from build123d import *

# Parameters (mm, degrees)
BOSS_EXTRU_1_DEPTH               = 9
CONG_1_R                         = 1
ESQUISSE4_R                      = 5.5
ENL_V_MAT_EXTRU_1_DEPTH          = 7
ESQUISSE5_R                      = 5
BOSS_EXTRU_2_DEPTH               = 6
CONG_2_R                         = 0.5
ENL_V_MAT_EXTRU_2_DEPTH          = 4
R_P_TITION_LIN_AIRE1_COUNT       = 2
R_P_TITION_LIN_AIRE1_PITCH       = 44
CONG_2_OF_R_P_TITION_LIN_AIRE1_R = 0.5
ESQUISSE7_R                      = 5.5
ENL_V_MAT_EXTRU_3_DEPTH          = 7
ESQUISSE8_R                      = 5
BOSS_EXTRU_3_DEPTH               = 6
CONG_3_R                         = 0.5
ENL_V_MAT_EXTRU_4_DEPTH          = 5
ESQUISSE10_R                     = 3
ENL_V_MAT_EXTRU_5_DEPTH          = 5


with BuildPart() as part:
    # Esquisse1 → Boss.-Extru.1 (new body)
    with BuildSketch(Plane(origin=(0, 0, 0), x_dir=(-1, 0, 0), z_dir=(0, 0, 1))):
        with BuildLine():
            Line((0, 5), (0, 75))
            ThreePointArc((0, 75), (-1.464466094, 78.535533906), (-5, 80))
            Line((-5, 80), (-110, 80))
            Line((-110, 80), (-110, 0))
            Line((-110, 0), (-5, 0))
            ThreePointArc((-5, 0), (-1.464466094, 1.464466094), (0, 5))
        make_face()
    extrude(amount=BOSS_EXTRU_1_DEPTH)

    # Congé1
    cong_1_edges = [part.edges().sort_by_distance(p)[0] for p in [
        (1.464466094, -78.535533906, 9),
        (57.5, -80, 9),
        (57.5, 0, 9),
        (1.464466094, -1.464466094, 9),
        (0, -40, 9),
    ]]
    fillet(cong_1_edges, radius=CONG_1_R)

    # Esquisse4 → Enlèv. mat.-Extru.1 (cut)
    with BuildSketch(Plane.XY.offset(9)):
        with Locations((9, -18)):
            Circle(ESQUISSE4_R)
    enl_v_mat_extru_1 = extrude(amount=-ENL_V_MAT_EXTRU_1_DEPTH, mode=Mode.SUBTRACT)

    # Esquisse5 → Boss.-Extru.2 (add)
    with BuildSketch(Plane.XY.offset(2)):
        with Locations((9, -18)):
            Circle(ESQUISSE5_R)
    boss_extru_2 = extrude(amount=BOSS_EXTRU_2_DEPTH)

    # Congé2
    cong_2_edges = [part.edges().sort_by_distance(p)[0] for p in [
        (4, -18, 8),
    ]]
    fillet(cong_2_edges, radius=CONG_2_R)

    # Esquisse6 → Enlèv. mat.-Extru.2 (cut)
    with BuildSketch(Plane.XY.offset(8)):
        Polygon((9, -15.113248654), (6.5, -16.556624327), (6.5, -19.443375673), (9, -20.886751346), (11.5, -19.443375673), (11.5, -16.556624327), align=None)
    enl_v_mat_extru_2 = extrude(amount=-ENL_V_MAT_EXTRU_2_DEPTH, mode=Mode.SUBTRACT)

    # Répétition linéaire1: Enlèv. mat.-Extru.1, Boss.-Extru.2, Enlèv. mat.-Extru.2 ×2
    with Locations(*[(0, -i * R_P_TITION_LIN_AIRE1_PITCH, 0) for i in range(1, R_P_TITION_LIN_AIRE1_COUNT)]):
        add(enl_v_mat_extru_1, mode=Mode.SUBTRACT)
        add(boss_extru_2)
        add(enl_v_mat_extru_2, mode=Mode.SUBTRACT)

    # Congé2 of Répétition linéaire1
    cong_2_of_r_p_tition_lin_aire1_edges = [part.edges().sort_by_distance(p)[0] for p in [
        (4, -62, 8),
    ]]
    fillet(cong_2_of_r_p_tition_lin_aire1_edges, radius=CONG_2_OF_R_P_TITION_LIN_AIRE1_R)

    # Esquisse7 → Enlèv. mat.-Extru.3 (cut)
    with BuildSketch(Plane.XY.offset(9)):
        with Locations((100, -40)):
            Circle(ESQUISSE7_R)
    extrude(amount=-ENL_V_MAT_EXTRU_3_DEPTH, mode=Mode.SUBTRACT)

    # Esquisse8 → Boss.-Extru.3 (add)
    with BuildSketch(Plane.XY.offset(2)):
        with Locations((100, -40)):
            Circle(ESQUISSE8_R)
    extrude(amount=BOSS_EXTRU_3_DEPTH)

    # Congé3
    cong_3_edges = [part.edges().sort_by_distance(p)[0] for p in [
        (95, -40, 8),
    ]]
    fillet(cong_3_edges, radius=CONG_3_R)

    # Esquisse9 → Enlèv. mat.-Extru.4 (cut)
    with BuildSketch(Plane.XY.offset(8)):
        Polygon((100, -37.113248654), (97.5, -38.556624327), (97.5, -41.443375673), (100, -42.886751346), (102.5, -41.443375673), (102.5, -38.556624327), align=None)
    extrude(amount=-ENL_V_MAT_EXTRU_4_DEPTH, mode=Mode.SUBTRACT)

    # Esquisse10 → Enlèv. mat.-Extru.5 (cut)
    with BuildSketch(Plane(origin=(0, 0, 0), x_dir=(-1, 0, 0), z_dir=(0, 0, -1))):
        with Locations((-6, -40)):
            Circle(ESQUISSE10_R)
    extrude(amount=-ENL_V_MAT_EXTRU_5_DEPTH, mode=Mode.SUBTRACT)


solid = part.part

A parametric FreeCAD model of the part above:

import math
import FreeCAD as App
import Part
import Sketcher
from FreeCAD import Vector
Q = App.Units.Quantity


def edges_at(feature, points):
    """Names of the edges that pass closest to the given points."""
    edges = feature.Shape.Edges
    near = lambda p: min(range(len(edges)), key=lambda i: edges[i].distToShape(Part.Vertex(*p))[0])
    return sorted({f"Edge{near(p) + 1}" for p in points})

doc = App.newDocument("Part")
body = doc.addObject("PartDesign::Body", "Body")

sketch1 = doc.addObject("Sketcher::SketchObject", "Sketch")
body.addObject(sketch1)
sketch1.AttachmentSupport = (doc.XY_Plane, [""])
sketch1.MapMode = "FlatFace"
sketch1.addGeometry(Part.LineSegment(Vector(0, -5, 0), Vector(0, -75, 0)), False)
sketch1.addGeometry(Part.ArcOfCircle(Part.Circle(Vector(5, -75, 0), Vector(0, 0, 1), 5), math.radians(180), math.radians(270)), False)
sketch1.addGeometry(Part.LineSegment(Vector(5, -80, 0), Vector(110, -80, 0)), False)
sketch1.addGeometry(Part.LineSegment(Vector(110, -80, 0), Vector(110, 0, 0)), False)
sketch1.addGeometry(Part.LineSegment(Vector(110, 0, 0), Vector(5, 0, 0)), False)
sketch1.addGeometry(Part.ArcOfCircle(Part.Circle(Vector(5, -5, 0), Vector(0, 0, 1), 5), math.radians(90), math.radians(180)), False)
sketch1.addConstraint(Sketcher.Constraint("Tangent", 0, 2, 1, 1))
sketch1.addConstraint(Sketcher.Constraint("Tangent", 1, 2, 2, 1))
sketch1.addConstraint(Sketcher.Constraint("Coincident", 2, 2, 3, 1))
sketch1.addConstraint(Sketcher.Constraint("Coincident", 3, 2, 4, 1))
sketch1.addConstraint(Sketcher.Constraint("Tangent", 4, 2, 5, 1))
sketch1.addConstraint(Sketcher.Constraint("Tangent", 5, 2, 0, 1))
sketch1.addConstraint(Sketcher.Constraint("Vertical", 0))
sketch1.addConstraint(Sketcher.Constraint("Horizontal", 2))
sketch1.addConstraint(Sketcher.Constraint("Vertical", 3))
sketch1.addConstraint(Sketcher.Constraint("Horizontal", 4))
sketch1.addConstraint(Sketcher.Constraint("Equal", 1, 5))
sketch1.addConstraint(Sketcher.Constraint("PointOnObject", 0, 2, -2))
sketch1.addConstraint(Sketcher.Constraint("PointOnObject", 3, 2, -1))
sketch1.addConstraint(Sketcher.Constraint("Radius", 1, Q("5 mm")))
sketch1.addConstraint(Sketcher.Constraint("DistanceX", 2, 1, 2, 2, Q("105 mm")))
sketch1.addConstraint(Sketcher.Constraint("DistanceY", 0, 2, 0, 1, Q("70 mm")))
pad1 = doc.addObject("PartDesign::Pad", "Pad")
body.addObject(pad1)
pad1.Profile = sketch1
pad1.Length = 9
doc.recompute()

fillet = doc.addObject("PartDesign::Fillet", "Fillet")
body.addObject(fillet)
fillet.Base = (pad1, edges_at(pad1, [
    (1.464, -78.536, 9),
    (57.5, -80, 9),
    (57.5, 0, 9),
    (1.464, -1.464, 9),
    (0, -40, 9),
]))
fillet.Radius = 1

sketch2 = doc.addObject("Sketcher::SketchObject", "Sketch001")
body.addObject(sketch2)
sketch2.AttachmentSupport = (doc.XY_Plane, [""])
sketch2.MapMode = "FlatFace"
sketch2.AttachmentOffset = App.Placement(Vector(0, 0, 9), App.Rotation())
sketch2.addGeometry(Part.Circle(Vector(9, -18, 0), Vector(0, 0, 1), 5.5), False)
sketch2.addConstraint(Sketcher.Constraint("Diameter", 0, Q("11 mm")))
sketch2.addConstraint(Sketcher.Constraint("DistanceX", -1, 1, 0, 3, Q("9 mm")))
sketch2.addConstraint(Sketcher.Constraint("DistanceY", 0, 3, -1, 1, Q("18 mm")))
pocket1 = doc.addObject("PartDesign::Pocket", "Pocket")
body.addObject(pocket1)
pocket1.Profile = sketch2
pocket1.Length = 7

sketch3 = doc.addObject("Sketcher::SketchObject", "Sketch002")
body.addObject(sketch3)
sketch3.AttachmentSupport = (doc.XY_Plane, [""])
sketch3.MapMode = "FlatFace"
sketch3.AttachmentOffset = App.Placement(Vector(0, 0, 2), App.Rotation())
sketch3.addGeometry(Part.Circle(Vector(9, -18, 0), Vector(0, 0, 1), 5), False)
sketch3.addConstraint(Sketcher.Constraint("Diameter", 0, Q("10 mm")))
sketch3.addConstraint(Sketcher.Constraint("DistanceX", -1, 1, 0, 3, Q("9 mm")))
sketch3.addConstraint(Sketcher.Constraint("DistanceY", 0, 3, -1, 1, Q("18 mm")))
pad2 = doc.addObject("PartDesign::Pad", "Pad001")
body.addObject(pad2)
pad2.Profile = sketch3
pad2.Length = 6
doc.recompute()

fillet2 = doc.addObject("PartDesign::Fillet", "Fillet001")
body.addObject(fillet2)
fillet2.Base = (pad2, edges_at(pad2, [(4, -18, 8)]))
fillet2.Radius = 0.5

sketch4 = doc.addObject("Sketcher::SketchObject", "Sketch003")
body.addObject(sketch4)
sketch4.AttachmentSupport = (doc.XY_Plane, [""])
sketch4.MapMode = "FlatFace"
sketch4.AttachmentOffset = App.Placement(Vector(0, 0, 8), App.Rotation())
sketch4.addGeometry(Part.LineSegment(Vector(9, -15.113249, 0), Vector(6.5, -16.556624, 0)), False)
sketch4.addGeometry(Part.LineSegment(Vector(6.5, -16.556624, 0), Vector(6.5, -19.443376, 0)), False)
sketch4.addGeometry(Part.LineSegment(Vector(6.5, -19.443376, 0), Vector(9, -20.886751, 0)), False)
sketch4.addGeometry(Part.LineSegment(Vector(9, -20.886751, 0), Vector(11.5, -19.443376, 0)), False)
sketch4.addGeometry(Part.LineSegment(Vector(11.5, -19.443376, 0), Vector(11.5, -16.556624, 0)), False)
sketch4.addGeometry(Part.LineSegment(Vector(11.5, -16.556624, 0), Vector(9, -15.113249, 0)), False)
sketch4.addConstraint(Sketcher.Constraint("Coincident", 0, 2, 1, 1))
sketch4.addConstraint(Sketcher.Constraint("Coincident", 1, 2, 2, 1))
sketch4.addConstraint(Sketcher.Constraint("Coincident", 2, 2, 3, 1))
sketch4.addConstraint(Sketcher.Constraint("Coincident", 3, 2, 4, 1))
sketch4.addConstraint(Sketcher.Constraint("Coincident", 4, 2, 5, 1))
sketch4.addConstraint(Sketcher.Constraint("Coincident", 5, 2, 0, 1))
sketch4.addConstraint(Sketcher.Constraint("Vertical", 1))
sketch4.addConstraint(Sketcher.Constraint("Vertical", 4))
sketch4.addConstraint(Sketcher.Constraint("Parallel", 0, 3))
sketch4.addConstraint(Sketcher.Constraint("Parallel", 2, 5))
sketch4.addConstraint(Sketcher.Constraint("Horizontal", 1, 2, 3, 2))
sketch4.addConstraint(Sketcher.Constraint("Horizontal", 0, 2, 4, 2))
sketch4.addConstraint(Sketcher.Constraint("Vertical", 2, 2, 5, 2))
sketch4.addConstraint(Sketcher.Constraint("Angle", 0, Q("-150 deg")))
sketch4.addConstraint(Sketcher.Constraint("DistanceX", -1, 1, 2, 2, Q("9 mm")))
sketch4.addConstraint(Sketcher.Constraint("DistanceX", 1, 2, 3, 2, Q("5 mm")))
sketch4.addConstraint(Sketcher.Constraint("DistanceY", 1, 2, 1, 1, Q("2.886751 mm")))
sketch4.addConstraint(Sketcher.Constraint("DistanceY", 2, 2, -1, 1, Q("20.886751 mm")))
pocket2 = doc.addObject("PartDesign::Pocket", "Pocket001")
body.addObject(pocket2)
pocket2.Profile = sketch4
pocket2.Length = 4
doc.recompute()

linearpattern = doc.addObject("PartDesign::LinearPattern", "LinearPattern")
body.addObject(linearpattern)
linearpattern.Originals = [pocket1, pad2, pocket2]
linearpattern.Direction = (doc.Y_Axis, [""])
linearpattern.Mode = "offset"
linearpattern.Offset = 44
linearpattern.Occurrences = 2
linearpattern.Reversed = True
body.Tip = linearpattern
doc.recompute()

fillet3 = doc.addObject("PartDesign::Fillet", "Fillet002")
body.addObject(fillet3)
fillet3.Base = (linearpattern, edges_at(linearpattern, [(4, -62, 8)]))
fillet3.Radius = 0.5

sketch5 = doc.addObject("Sketcher::SketchObject", "Sketch004")
body.addObject(sketch5)
sketch5.AttachmentSupport = (doc.XY_Plane, [""])
sketch5.MapMode = "FlatFace"
sketch5.AttachmentOffset = App.Placement(Vector(0, 0, 9), App.Rotation())
sketch5.addGeometry(Part.Circle(Vector(100, -40, 0), Vector(0, 0, 1), 5.5), False)
sketch5.addConstraint(Sketcher.Constraint("Diameter", 0, Q("11 mm")))
sketch5.addConstraint(Sketcher.Constraint("DistanceX", -1, 1, 0, 3, Q("100 mm")))
sketch5.addConstraint(Sketcher.Constraint("DistanceY", 0, 3, -1, 1, Q("40 mm")))
pocket3 = doc.addObject("PartDesign::Pocket", "Pocket002")
body.addObject(pocket3)
pocket3.Profile = sketch5
pocket3.Length = 7

sketch6 = doc.addObject("Sketcher::SketchObject", "Sketch005")
body.addObject(sketch6)
sketch6.AttachmentSupport = (doc.XY_Plane, [""])
sketch6.MapMode = "FlatFace"
sketch6.AttachmentOffset = App.Placement(Vector(0, 0, 2), App.Rotation())
sketch6.addGeometry(Part.Circle(Vector(100, -40, 0), Vector(0, 0, 1), 5), False)
sketch6.addConstraint(Sketcher.Constraint("Diameter", 0, Q("10 mm")))
sketch6.addConstraint(Sketcher.Constraint("DistanceX", -1, 1, 0, 3, Q("100 mm")))
sketch6.addConstraint(Sketcher.Constraint("DistanceY", 0, 3, -1, 1, Q("40 mm")))
pad3 = doc.addObject("PartDesign::Pad", "Pad002")
body.addObject(pad3)
pad3.Profile = sketch6
pad3.Length = 6
doc.recompute()

fillet4 = doc.addObject("PartDesign::Fillet", "Fillet003")
body.addObject(fillet4)
fillet4.Base = (pad3, edges_at(pad3, [(95, -40, 8)]))
fillet4.Radius = 0.5

sketch7 = doc.addObject("Sketcher::SketchObject", "Sketch006")
body.addObject(sketch7)
sketch7.AttachmentSupport = (doc.XY_Plane, [""])
sketch7.MapMode = "FlatFace"
sketch7.AttachmentOffset = App.Placement(Vector(0, 0, 8), App.Rotation())
sketch7.addGeometry(Part.LineSegment(Vector(100, -37.113249, 0), Vector(97.5, -38.556624, 0)), False)
sketch7.addGeometry(Part.LineSegment(Vector(97.5, -38.556624, 0), Vector(97.5, -41.443376, 0)), False)
sketch7.addGeometry(Part.LineSegment(Vector(97.5, -41.443376, 0), Vector(100, -42.886751, 0)), False)
sketch7.addGeometry(Part.LineSegment(Vector(100, -42.886751, 0), Vector(102.5, -41.443376, 0)), False)
sketch7.addGeometry(Part.LineSegment(Vector(102.5, -41.443376, 0), Vector(102.5, -38.556624, 0)), False)
sketch7.addGeometry(Part.LineSegment(Vector(102.5, -38.556624, 0), Vector(100, -37.113249, 0)), False)
sketch7.addConstraint(Sketcher.Constraint("Coincident", 0, 2, 1, 1))
sketch7.addConstraint(Sketcher.Constraint("Coincident", 1, 2, 2, 1))
sketch7.addConstraint(Sketcher.Constraint("Coincident", 2, 2, 3, 1))
sketch7.addConstraint(Sketcher.Constraint("Coincident", 3, 2, 4, 1))
sketch7.addConstraint(Sketcher.Constraint("Coincident", 4, 2, 5, 1))
sketch7.addConstraint(Sketcher.Constraint("Coincident", 5, 2, 0, 1))
sketch7.addConstraint(Sketcher.Constraint("Vertical", 1))
sketch7.addConstraint(Sketcher.Constraint("Vertical", 4))
sketch7.addConstraint(Sketcher.Constraint("Parallel", 0, 3))
sketch7.addConstraint(Sketcher.Constraint("Parallel", 2, 5))
sketch7.addConstraint(Sketcher.Constraint("Horizontal", 1, 2, 3, 2))
sketch7.addConstraint(Sketcher.Constraint("Horizontal", 0, 2, 4, 2))
sketch7.addConstraint(Sketcher.Constraint("Vertical", 2, 2, 5, 2))
sketch7.addConstraint(Sketcher.Constraint("Angle", 0, Q("-150 deg")))
sketch7.addConstraint(Sketcher.Constraint("DistanceX", -1, 1, 2, 2, Q("100 mm")))
sketch7.addConstraint(Sketcher.Constraint("DistanceX", 1, 2, 3, 2, Q("5 mm")))
sketch7.addConstraint(Sketcher.Constraint("DistanceY", 1, 2, 1, 1, Q("2.886751 mm")))
sketch7.addConstraint(Sketcher.Constraint("DistanceY", 2, 2, -1, 1, Q("42.886751 mm")))
pocket4 = doc.addObject("PartDesign::Pocket", "Pocket003")
body.addObject(pocket4)
pocket4.Profile = sketch7
pocket4.Length = 5

sketch8 = doc.addObject("Sketcher::SketchObject", "Sketch007")
body.addObject(sketch8)
sketch8.AttachmentSupport = (doc.XY_Plane, [""])
sketch8.MapMode = "FlatFace"
sketch8.addGeometry(Part.Circle(Vector(6, -40, 0), Vector(0, 0, 1), 3), False)
sketch8.addConstraint(Sketcher.Constraint("Diameter", 0, Q("6 mm")))
sketch8.addConstraint(Sketcher.Constraint("DistanceX", -1, 1, 0, 3, Q("6 mm")))
sketch8.addConstraint(Sketcher.Constraint("DistanceY", 0, 3, -1, 1, Q("40 mm")))
pocket5 = doc.addObject("PartDesign::Pocket", "Pocket004")
body.addObject(pocket5)
pocket5.Profile = sketch8
pocket5.Length = 5
pocket5.Reversed = True

doc.recompute()
